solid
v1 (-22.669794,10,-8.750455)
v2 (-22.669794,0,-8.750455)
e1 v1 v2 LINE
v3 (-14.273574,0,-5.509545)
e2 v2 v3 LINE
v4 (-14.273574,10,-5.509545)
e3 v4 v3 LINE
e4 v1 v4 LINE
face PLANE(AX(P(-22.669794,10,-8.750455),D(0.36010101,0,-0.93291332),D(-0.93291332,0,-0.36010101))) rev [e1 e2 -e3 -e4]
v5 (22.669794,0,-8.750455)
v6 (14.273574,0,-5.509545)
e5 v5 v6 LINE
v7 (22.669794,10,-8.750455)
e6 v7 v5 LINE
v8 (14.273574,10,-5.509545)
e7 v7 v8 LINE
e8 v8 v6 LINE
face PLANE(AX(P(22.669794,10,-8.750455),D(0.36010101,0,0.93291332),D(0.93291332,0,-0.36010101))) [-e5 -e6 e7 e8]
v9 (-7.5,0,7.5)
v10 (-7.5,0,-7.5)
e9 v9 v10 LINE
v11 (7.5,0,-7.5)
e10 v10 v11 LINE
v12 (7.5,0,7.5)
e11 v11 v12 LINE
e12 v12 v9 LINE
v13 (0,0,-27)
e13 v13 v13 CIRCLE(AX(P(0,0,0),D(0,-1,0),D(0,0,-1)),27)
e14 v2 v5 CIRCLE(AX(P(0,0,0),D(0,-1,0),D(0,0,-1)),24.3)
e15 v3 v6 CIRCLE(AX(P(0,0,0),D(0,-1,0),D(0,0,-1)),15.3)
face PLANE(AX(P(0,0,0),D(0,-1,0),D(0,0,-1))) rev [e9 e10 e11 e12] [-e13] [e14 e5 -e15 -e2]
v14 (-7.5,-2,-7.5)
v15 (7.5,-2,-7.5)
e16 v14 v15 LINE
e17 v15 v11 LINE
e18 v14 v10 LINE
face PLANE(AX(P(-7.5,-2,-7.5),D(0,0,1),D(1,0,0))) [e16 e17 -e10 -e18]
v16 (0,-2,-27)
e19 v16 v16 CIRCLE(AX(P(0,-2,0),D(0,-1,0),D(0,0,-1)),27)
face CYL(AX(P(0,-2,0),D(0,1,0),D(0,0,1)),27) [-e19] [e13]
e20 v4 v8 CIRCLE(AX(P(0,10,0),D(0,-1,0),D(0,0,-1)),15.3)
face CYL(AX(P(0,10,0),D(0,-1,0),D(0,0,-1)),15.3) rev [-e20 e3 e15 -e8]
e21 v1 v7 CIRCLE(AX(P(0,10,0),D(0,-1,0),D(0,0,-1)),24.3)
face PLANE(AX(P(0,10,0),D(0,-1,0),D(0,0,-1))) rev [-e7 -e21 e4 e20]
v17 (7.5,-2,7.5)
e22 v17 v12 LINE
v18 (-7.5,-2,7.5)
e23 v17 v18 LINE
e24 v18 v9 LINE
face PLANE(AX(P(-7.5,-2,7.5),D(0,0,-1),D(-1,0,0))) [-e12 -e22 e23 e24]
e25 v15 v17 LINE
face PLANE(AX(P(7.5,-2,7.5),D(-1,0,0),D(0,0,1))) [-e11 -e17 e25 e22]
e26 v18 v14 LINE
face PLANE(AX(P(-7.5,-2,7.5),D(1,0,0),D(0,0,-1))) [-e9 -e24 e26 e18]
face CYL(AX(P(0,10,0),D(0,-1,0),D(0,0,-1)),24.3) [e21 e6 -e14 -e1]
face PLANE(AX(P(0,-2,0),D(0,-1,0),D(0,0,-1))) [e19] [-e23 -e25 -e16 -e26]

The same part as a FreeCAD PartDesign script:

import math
import FreeCAD as App
import Part
import Sketcher

V = App.Vector

doc = App.newDocument("Part")
body = doc.addObject("PartDesign::Body", "Body")

# Sketch on XZ plane
sketch1 = body.newObject("Sketcher::SketchObject", "Sketch")
sketch1.AttachmentSupport = (doc.getObject("XZ_Plane"), [""])
sketch1.MapMode = "FlatFace"
sketch1.addGeometry(Part.LineSegment(V(-23, -9, 0), V(-14, -6, 0)), False)
sketch1.addGeometry(Part.ArcOfCircle(Part.Circle(V(0, 0, 0), V(0, 0, 1), 15), math.radians(-159), math.radians(-21)), False)
sketch1.addGeometry(Part.LineSegment(V(14, -6, 0), V(23, -9, 0)), False)
sketch1.addGeometry(Part.ArcOfCircle(Part.Circle(V(0, 0, 0), V(0, 0, 1), 24), math.radians(-159), math.radians(-21)), False)
sketch1.addConstraint(Sketcher.Constraint("Coincident", 0, 2, 1, 1))
sketch1.addConstraint(Sketcher.Constraint("Coincident", 1, 2, 2, 1))
sketch1.addConstraint(Sketcher.Constraint("Coincident", 2, 2, 3, 2))
sketch1.addConstraint(Sketcher.Constraint("Coincident", 3, 1, 0, 1))
sketch1.addConstraint(Sketcher.Constraint("Coincident", 1, 3, -1, 1))
sketch1.addConstraint(Sketcher.Constraint("Coincident", 3, 3, -1, 1))
sketch1.addConstraint(Sketcher.Constraint("Horizontal", 0, 2, 1, 2))
sketch1.addConstraint(Sketcher.Constraint("Horizontal", 2, 2, 3, 1))
sketch1.addConstraint(Sketcher.Constraint("Radius", 1, 15.3))
sketch1.addConstraint(Sketcher.Constraint("Radius", 3, 24.3))
sketch1.addConstraint(Sketcher.Constraint("DistanceX", 1, 2, 2, 2, 8.39622))
sketch1.addConstraint(Sketcher.Constraint("DistanceX", 0, 2, -1, 1, 14.273574))
pad1 = body.newObject("PartDesign::Pad", "Pad")
pad1.Profile = sketch1
pad1.Length = 10
pad1.Reversed = True

# Sketch on XZ plane
sketch2 = body.newObject("Sketcher::SketchObject", "Sketch001")
sketch2.AttachmentSupport = (doc.getObject("XZ_Plane"), [""])
sketch2.MapMode = "FlatFace"
sketch2.addGeometry(Part.Circle(V(0, 0, 0), V(0, 0, 1), 27), False)
sketch2.addGeometry(Part.LineSegment(V(8, -8, 0), V(-8, -8, 0)), False)
sketch2.addGeometry(Part.LineSegment(V(-8, -8, 0), V(-8, 8, 0)), False)
sketch2.addGeometry(Part.LineSegment(V(-8, 8, 0), V(8, 8, 0)), False)
sketch2.addGeometry(Part.LineSegment(V(8, 8, 0), V(8, -8, 0)), False)
sketch2.addConstraint(Sketcher.Constraint("Coincident", 1, 2, 2, 1))
sketch2.addConstraint(Sketcher.Constraint("Coincident", 2, 2, 3, 1))
sketch2.addConstraint(Sketcher.Constraint("Coincident", 3, 2, 4, 1))
sketch2.addConstraint(Sketcher.Constraint("Coincident", 4, 2, 1, 1))
sketch2.addConstraint(Sketcher.Constraint("Horizontal", 1))
sketch2.addConstraint(Sketcher.Constraint("Vertical", 2))
sketch2.addConstraint(Sketcher.Constraint("Horizontal", 3))
sketch2.addConstraint(Sketcher.Constraint("Vertical", 4))
sketch2.addConstraint(Sketcher.Constraint("Coincident", 0, 3, -1, 1))
sketch2.addConstraint(Sketcher.Constraint("Symmetric", 1, 2, 3, 2, -1, 1))
sketch2.addConstraint(Sketcher.Constraint("Equal", 3, 2))
sketch2.addConstraint(Sketcher.Constraint("Diameter", 0, 54.0))
sketch2.addConstraint(Sketcher.Constraint("DistanceX", 1, 2, 1, 1, 15.0))
pad2 = body.newObject("PartDesign::Pad", "Pad001")
pad2.Profile = sketch2
pad2.Length = 2

doc.recompute()
